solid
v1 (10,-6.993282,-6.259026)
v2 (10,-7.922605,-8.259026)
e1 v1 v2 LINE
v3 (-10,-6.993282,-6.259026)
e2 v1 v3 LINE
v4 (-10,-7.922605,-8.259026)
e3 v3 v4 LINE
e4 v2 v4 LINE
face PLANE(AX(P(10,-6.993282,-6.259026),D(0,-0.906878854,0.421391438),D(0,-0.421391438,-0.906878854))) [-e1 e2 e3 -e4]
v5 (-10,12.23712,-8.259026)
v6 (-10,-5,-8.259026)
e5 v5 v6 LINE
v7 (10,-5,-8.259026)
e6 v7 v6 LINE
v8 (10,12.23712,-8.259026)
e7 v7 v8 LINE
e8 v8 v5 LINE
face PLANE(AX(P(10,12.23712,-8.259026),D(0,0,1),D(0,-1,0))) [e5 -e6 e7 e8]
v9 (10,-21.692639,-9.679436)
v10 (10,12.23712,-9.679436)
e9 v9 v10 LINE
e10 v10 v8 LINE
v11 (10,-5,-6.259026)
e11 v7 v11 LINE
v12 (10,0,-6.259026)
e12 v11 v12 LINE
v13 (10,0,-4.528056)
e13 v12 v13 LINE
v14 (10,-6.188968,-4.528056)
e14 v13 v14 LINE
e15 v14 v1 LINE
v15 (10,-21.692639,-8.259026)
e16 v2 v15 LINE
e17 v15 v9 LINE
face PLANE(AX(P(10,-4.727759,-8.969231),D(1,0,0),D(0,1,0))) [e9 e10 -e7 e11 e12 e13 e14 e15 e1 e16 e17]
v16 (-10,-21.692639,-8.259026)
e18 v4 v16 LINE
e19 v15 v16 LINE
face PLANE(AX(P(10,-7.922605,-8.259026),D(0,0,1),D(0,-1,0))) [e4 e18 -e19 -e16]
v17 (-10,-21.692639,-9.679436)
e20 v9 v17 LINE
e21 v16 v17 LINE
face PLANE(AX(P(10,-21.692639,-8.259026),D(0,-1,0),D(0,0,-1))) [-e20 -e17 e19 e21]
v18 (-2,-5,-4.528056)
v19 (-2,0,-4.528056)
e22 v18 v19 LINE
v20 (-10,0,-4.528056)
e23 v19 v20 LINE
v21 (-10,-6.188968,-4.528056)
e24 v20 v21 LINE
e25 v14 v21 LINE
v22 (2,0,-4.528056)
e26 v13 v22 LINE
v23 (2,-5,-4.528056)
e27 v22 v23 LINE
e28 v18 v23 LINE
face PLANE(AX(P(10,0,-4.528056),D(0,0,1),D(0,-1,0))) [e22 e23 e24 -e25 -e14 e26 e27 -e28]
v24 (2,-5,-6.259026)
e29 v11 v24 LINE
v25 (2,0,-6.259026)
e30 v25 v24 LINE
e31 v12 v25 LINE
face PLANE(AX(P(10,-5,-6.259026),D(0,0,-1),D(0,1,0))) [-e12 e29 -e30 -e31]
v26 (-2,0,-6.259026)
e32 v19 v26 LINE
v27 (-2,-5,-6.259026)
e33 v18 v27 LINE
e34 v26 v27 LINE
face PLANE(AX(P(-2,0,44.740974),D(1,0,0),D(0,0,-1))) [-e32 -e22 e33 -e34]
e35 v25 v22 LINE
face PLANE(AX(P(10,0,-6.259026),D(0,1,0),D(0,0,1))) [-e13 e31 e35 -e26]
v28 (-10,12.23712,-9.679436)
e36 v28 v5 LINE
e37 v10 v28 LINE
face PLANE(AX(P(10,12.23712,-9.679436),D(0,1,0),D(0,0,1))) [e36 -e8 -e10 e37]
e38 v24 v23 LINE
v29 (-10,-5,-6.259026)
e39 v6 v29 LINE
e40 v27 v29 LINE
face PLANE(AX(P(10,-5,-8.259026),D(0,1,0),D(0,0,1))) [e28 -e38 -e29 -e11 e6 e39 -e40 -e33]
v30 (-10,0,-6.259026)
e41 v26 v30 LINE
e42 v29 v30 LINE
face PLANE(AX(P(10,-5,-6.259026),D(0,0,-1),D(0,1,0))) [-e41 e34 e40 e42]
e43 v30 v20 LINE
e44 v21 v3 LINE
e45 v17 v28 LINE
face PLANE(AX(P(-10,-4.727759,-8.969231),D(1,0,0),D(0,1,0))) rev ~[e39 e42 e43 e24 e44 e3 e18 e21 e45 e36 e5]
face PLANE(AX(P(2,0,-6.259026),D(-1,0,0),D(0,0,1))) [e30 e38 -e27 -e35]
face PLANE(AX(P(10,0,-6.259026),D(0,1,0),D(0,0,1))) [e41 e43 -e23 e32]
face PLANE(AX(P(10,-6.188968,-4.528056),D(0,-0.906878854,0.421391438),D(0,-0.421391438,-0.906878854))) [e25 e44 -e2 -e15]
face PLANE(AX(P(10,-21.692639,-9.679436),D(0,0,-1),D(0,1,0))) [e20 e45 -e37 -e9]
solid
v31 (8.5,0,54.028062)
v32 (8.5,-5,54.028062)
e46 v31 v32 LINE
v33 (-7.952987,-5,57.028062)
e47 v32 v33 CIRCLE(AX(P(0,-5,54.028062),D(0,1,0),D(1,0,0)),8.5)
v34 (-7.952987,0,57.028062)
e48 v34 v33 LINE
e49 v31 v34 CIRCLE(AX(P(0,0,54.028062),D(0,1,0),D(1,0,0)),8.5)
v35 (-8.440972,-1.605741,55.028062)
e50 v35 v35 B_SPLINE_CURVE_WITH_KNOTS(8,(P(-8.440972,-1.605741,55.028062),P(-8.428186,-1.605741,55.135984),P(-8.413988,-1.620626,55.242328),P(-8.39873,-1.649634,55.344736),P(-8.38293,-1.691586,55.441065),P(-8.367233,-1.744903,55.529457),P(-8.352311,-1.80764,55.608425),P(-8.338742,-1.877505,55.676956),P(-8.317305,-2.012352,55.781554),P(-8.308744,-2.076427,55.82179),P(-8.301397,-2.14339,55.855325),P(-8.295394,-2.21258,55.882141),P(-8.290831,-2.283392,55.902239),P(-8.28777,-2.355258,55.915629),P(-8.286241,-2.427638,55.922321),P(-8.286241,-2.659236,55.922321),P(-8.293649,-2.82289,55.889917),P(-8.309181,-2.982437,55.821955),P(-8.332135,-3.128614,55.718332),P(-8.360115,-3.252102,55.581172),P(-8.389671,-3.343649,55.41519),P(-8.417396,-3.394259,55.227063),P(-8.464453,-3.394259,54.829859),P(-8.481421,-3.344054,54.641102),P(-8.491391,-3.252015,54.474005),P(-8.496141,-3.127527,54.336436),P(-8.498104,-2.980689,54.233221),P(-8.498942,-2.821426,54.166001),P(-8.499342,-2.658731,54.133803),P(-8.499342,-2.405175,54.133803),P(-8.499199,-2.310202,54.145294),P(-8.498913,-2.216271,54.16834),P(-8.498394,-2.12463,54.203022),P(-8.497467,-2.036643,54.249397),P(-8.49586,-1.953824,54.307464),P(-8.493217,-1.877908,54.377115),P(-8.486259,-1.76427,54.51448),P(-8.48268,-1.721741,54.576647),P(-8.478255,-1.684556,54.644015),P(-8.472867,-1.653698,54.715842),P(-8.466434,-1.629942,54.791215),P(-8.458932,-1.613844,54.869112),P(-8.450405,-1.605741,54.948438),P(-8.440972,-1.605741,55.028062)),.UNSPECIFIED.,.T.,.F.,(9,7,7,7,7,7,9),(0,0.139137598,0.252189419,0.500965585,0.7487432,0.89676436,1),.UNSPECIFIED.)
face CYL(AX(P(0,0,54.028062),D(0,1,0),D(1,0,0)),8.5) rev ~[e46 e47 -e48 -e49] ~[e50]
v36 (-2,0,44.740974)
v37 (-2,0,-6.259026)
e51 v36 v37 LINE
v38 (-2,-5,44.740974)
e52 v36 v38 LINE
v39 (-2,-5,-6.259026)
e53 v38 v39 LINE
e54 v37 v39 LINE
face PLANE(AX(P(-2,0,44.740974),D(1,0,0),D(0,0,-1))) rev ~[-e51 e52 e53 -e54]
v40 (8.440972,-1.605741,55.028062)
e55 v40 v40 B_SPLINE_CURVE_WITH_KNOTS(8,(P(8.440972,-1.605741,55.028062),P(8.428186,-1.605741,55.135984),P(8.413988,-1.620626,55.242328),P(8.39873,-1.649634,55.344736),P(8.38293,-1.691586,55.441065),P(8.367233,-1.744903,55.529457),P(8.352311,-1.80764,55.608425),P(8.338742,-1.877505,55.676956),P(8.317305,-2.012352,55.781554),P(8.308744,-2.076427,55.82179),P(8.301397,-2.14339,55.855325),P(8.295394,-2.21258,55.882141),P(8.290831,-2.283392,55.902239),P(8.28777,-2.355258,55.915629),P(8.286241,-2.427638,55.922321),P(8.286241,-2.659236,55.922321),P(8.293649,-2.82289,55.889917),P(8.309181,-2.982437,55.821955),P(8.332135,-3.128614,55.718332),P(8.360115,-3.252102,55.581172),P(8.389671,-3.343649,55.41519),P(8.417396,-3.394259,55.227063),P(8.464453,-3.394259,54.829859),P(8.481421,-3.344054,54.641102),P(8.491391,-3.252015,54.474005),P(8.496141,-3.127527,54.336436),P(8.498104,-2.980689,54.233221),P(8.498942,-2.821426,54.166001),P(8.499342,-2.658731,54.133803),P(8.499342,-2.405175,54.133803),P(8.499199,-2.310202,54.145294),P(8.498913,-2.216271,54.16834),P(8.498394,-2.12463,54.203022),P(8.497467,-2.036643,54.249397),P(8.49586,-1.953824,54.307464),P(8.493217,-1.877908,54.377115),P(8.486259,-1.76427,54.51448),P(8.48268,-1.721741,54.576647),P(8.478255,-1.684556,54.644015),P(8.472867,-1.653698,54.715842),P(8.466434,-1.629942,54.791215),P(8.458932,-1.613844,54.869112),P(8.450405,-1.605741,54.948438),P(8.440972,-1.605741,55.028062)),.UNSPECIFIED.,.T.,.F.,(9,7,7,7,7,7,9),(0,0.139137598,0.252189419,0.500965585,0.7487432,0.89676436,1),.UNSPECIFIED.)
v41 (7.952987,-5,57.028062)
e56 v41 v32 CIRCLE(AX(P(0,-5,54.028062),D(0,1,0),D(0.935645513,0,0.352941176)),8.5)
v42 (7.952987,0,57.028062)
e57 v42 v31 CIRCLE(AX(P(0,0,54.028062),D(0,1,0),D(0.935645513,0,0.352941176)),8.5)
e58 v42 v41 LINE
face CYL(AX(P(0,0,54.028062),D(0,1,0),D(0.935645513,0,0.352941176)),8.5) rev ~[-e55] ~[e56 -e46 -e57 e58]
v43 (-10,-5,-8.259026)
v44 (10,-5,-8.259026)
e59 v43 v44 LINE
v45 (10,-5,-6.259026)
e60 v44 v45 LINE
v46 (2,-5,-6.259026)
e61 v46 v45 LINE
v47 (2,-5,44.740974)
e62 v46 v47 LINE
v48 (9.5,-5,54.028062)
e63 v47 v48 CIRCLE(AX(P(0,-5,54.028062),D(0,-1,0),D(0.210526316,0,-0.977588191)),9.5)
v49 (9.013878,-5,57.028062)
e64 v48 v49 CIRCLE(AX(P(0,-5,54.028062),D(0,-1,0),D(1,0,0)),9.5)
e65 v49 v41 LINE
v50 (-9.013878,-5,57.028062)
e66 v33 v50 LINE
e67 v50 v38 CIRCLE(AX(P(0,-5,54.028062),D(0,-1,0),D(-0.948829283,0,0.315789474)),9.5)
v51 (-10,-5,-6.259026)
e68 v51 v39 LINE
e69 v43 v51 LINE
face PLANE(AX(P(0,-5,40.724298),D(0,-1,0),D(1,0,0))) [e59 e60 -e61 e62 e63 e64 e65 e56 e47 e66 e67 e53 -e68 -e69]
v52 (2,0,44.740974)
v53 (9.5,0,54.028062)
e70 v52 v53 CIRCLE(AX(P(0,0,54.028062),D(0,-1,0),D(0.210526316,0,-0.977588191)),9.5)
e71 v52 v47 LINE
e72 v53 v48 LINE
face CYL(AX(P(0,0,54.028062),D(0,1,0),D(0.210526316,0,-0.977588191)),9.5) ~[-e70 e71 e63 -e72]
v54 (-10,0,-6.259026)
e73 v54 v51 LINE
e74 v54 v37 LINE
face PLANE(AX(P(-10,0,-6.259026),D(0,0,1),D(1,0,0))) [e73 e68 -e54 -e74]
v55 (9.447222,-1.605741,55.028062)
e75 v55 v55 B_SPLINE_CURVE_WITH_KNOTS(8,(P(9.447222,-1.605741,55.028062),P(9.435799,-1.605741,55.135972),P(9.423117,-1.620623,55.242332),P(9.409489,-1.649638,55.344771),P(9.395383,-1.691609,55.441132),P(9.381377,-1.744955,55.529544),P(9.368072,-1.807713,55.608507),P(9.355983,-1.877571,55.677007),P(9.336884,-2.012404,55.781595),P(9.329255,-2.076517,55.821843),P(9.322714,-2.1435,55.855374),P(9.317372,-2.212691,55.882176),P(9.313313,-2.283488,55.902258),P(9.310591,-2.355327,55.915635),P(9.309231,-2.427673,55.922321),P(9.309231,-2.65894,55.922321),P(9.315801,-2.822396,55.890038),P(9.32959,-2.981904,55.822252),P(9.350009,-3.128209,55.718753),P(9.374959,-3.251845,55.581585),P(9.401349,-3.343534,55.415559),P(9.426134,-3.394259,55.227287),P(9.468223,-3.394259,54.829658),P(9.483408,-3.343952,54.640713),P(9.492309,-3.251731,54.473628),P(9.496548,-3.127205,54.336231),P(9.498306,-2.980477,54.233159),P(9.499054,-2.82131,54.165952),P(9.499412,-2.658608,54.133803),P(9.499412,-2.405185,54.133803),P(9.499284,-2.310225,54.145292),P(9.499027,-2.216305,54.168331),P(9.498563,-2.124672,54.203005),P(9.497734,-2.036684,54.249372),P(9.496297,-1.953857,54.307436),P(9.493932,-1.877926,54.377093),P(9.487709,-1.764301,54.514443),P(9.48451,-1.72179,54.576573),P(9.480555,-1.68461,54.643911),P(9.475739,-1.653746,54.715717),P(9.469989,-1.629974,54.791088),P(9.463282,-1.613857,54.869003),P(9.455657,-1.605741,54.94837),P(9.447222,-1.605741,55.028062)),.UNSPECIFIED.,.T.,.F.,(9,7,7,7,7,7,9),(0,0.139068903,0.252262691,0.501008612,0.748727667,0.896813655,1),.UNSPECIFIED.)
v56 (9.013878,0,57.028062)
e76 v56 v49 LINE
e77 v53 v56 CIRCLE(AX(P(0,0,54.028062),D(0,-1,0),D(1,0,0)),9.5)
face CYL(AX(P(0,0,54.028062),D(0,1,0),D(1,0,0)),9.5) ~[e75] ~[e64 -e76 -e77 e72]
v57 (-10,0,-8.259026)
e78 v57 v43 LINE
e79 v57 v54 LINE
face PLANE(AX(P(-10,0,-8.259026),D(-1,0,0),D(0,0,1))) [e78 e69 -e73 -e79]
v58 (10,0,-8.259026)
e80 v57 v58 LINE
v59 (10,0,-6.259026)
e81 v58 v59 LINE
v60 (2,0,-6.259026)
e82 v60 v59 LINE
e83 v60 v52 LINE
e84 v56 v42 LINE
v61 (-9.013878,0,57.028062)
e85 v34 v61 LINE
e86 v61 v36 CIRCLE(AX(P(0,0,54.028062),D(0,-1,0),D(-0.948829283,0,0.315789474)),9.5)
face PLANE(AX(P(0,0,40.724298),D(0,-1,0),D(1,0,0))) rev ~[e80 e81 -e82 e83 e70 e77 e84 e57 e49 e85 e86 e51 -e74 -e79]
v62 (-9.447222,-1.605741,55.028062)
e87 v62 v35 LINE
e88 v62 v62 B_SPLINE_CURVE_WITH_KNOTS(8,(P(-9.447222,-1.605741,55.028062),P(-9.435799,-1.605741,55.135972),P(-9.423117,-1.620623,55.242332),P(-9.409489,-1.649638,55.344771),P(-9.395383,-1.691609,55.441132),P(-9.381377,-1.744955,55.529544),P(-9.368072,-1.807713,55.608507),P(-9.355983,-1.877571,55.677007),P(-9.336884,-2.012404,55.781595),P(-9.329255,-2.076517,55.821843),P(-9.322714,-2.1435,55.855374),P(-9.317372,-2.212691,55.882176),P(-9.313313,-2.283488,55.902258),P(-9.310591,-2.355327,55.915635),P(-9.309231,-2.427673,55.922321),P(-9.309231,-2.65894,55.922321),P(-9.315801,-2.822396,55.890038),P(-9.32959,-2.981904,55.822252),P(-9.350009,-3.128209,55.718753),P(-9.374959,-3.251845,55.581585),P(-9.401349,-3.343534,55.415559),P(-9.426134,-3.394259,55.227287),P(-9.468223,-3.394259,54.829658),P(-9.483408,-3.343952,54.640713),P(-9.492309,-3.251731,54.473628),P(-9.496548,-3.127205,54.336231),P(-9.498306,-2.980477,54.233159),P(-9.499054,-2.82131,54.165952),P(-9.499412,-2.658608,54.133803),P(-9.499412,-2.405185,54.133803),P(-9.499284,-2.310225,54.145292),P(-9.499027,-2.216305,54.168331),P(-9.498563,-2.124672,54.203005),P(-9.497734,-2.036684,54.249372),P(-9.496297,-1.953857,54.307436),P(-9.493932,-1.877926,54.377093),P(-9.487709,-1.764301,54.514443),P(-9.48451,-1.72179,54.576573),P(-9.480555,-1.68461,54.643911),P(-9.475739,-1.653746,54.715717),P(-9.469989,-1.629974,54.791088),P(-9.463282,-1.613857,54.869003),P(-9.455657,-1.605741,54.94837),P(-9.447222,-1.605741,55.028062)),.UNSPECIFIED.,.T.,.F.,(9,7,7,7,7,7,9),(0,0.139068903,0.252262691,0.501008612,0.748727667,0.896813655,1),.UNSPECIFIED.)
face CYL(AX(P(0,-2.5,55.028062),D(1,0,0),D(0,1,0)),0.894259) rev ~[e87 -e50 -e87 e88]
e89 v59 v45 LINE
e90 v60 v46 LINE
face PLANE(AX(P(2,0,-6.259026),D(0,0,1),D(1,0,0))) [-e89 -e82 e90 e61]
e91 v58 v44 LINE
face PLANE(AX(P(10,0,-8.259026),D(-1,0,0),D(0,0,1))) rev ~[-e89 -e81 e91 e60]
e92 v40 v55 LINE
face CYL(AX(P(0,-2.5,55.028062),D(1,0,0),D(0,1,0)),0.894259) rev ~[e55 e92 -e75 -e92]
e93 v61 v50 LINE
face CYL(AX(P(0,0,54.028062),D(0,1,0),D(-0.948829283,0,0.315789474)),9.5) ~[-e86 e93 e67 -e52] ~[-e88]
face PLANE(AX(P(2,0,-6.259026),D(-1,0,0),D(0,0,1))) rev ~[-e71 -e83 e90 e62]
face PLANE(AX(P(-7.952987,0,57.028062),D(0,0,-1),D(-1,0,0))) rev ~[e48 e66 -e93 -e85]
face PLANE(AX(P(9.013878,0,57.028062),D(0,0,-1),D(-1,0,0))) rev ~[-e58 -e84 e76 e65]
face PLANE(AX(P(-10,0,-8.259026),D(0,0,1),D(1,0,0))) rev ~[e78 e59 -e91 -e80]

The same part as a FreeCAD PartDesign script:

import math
import FreeCAD as App
import Part
import Sketcher
from FreeCAD import Vector


def add_polygon(sketch, points):
    """Adds a closed chain of lines whose ends are joined by coincident constraints."""
    first, n = sketch.GeometryCount, len(points)
    for a, b in zip(points, points[1:] + points[:1]):
        sketch.addGeometry(Part.LineSegment(App.Vector(*a, 0), App.Vector(*b, 0)), False)
    for i in range(n):
        sketch.addConstraint(Sketcher.Constraint("Coincident", first + i, 2, first + (i + 1) % n, 1))

doc = App.newDocument("Part")
body = doc.addObject("PartDesign::Body", "Body")

# Sketch on XZ plane
sketch1 = doc.addObject("Sketcher::SketchObject", "Sketch")
body.addObject(sketch1)
sketch1.AttachmentSupport = (doc.XZ_Plane, [""])
sketch1.MapMode = "FlatFace"
sketch1.addGeometry(Part.LineSegment(Vector(-2, 44.7, 0), Vector(-2, -6.3, 0)), False)
sketch1.addGeometry(Part.LineSegment(Vector(-2, -6.3, 0), Vector(-10, -6.3, 0)), False)
sketch1.addGeometry(Part.LineSegment(Vector(-10, -6.3, 0), Vector(-10, -8.3, 0)), False)
sketch1.addGeometry(Part.LineSegment(Vector(-10, -8.3, 0), Vector(10, -8.3, 0)), False)
sketch1.addGeometry(Part.LineSegment(Vector(10, -8.3, 0), Vector(10, -6.3, 0)), False)
sketch1.addGeometry(Part.LineSegment(Vector(10, -6.3, 0), Vector(2, -6.3, 0)), False)
sketch1.addGeometry(Part.LineSegment(Vector(2, -6.3, 0), Vector(2, 44.7, 0)), False)
sketch1.addGeometry(Part.ArcOfCircle(Part.Circle(Vector(0, 54, 0), Vector(0, 0, 1), 9.5), math.radians(-78), math.radians(0)), False)
sketch1.addGeometry(Part.ArcOfCircle(Part.Circle(Vector(0, 54, 0), Vector(0, 0, 1), 9.5), math.radians(0), math.radians(18.41)), False)
sketch1.addGeometry(Part.LineSegment(Vector(9, 57, 0), Vector(8, 57, 0)), False)
sketch1.addGeometry(Part.ArcOfCircle(Part.Circle(Vector(0, 54, 0), Vector(0, 0, 1), 8.5), math.radians(0), math.radians(21)), False)
sketch1.addGeometry(Part.ArcOfCircle(Part.Circle(Vector(0, 54, 0), Vector(0, 0, 1), 8.5), math.radians(159), math.radians(360)), False)
sketch1.addGeometry(Part.LineSegment(Vector(-8, 57, 0), Vector(-9, 57, 0)), False)
sketch1.addGeometry(Part.ArcOfCircle(Part.Circle(Vector(0, 54, 0), Vector(0, 0, 1), 9.5), math.radians(162), math.radians(258)), False)
sketch1.addConstraint(Sketcher.Constraint("Coincident", 0, 2, 1, 1))
sketch1.addConstraint(Sketcher.Constraint("Coincident", 1, 2, 2, 1))
sketch1.addConstraint(Sketcher.Constraint("Coincident", 2, 2, 3, 1))
sketch1.addConstraint(Sketcher.Constraint("Coincident", 3, 2, 4, 1))
sketch1.addConstraint(Sketcher.Constraint("Coincident", 4, 2, 5, 1))
sketch1.addConstraint(Sketcher.Constraint("Coincident", 5, 2, 6, 1))
sketch1.addConstraint(Sketcher.Constraint("Coincident", 6, 2, 7, 1))
sketch1.addConstraint(Sketcher.Constraint("Tangent", 7, 2, 8, 1))
sketch1.addConstraint(Sketcher.Constraint("Coincident", 8, 2, 9, 1))
sketch1.addConstraint(Sketcher.Constraint("Coincident", 9, 2, 10, 2))
sketch1.addConstraint(Sketcher.Constraint("Tangent", 10, 1, 11, 2))
sketch1.addConstraint(Sketcher.Constraint("Coincident", 11, 1, 12, 1))
sketch1.addConstraint(Sketcher.Constraint("Coincident", 12, 2, 13, 1))
sketch1.addConstraint(Sketcher.Constraint("Coincident", 13, 2, 0, 1))
sketch1.addConstraint(Sketcher.Constraint("Vertical", 0))
sketch1.addConstraint(Sketcher.Constraint("Horizontal", 1))
sketch1.addConstraint(Sketcher.Constraint("Vertical", 2))
sketch1.addConstraint(Sketcher.Constraint("Horizontal", 3))
sketch1.addConstraint(Sketcher.Constraint("Vertical", 4))
sketch1.addConstraint(Sketcher.Constraint("Horizontal", 5))
sketch1.addConstraint(Sketcher.Constraint("Vertical", 6))
sketch1.addConstraint(Sketcher.Constraint("Horizontal", 9))
sketch1.addConstraint(Sketcher.Constraint("Horizontal", 12))
sketch1.addConstraint(Sketcher.Constraint("Coincident", 10, 3, 7, 3))
sketch1.addConstraint(Sketcher.Constraint("Coincident", 13, 3, 7, 3))
sketch1.addConstraint(Sketcher.Constraint("Equal", 7, 8))
sketch1.addConstraint(Sketcher.Constraint("Equal", 10, 11))
sketch1.addConstraint(Sketcher.Constraint("Equal", 8, 13))
sketch1.addConstraint(Sketcher.Constraint("Symmetric", 1, 2, 4, 2, -2))
sketch1.addConstraint(Sketcher.Constraint("Symmetric", 9, 2, 11, 1, -2))
sketch1.addConstraint(Sketcher.Constraint("Horizontal", 13, 3, 7, 2))
sketch1.addConstraint(Sketcher.Constraint("Horizontal", 7, 2, 10, 1))
sketch1.addConstraint(Sketcher.Constraint("Horizontal", 6, 2, 13, 2))
sketch1.addConstraint(Sketcher.Constraint("Radius", 7, 9.5))
sketch1.addConstraint(Sketcher.Constraint("Radius", 10, 8.5))
sketch1.addConstraint(Sketcher.Constraint("DistanceX", 1, 2, 1, 1, 8.0))
sketch1.addConstraint(Sketcher.Constraint("DistanceX", 3, 1, 3, 2, 20.0))
sketch1.addConstraint(Sketcher.Constraint("DistanceY", 0, 2, 0, 1, 51.0))
sketch1.addConstraint(Sketcher.Constraint("DistanceY", 2, 2, 2, 1, 2.0))
sketch1.addConstraint(Sketcher.Constraint("DistanceY", 7, 2, 8, 2, 3.0))
sketch1.addConstraint(Sketcher.Constraint("DistanceY", -1, 1, 7, 3, 54.028062))
pad1 = doc.addObject("PartDesign::Pad", "Pad")
body.addObject(pad1)
pad1.Profile = sketch1
pad1.Length = 5
body2 = doc.addObject("PartDesign::Body", "Body001")

# Sketch on YZ plane
sketch2 = doc.addObject("Sketcher::SketchObject", "Sketch001")
body2.addObject(sketch2)
sketch2.AttachmentSupport = (doc.getObject("YZ_Plane001"), [""])
sketch2.MapMode = "FlatFace"
sketch2.AttachmentOffset = App.Placement(Vector(0, 0, 10), App.Rotation())
add_polygon(sketch2, [(12.2, -9.7), (12.2, -8.3), (-5, -8.3), (-5, -6.3), (0, -6.3), (0, -4.5), (-6.2, -4.5), (-7, -6.3), (-7.9, -8.3), (-21.7, -8.3), (-21.7, -9.7)])  # lines 0-10
sketch2.addConstraint(Sketcher.Constraint("Vertical", 0))
sketch2.addConstraint(Sketcher.Constraint("Horizontal", 1))
sketch2.addConstraint(Sketcher.Constraint("Vertical", 2))
sketch2.addConstraint(Sketcher.Constraint("Horizontal", 3))
sketch2.addConstraint(Sketcher.Constraint("Vertical", 4))
sketch2.addConstraint(Sketcher.Constraint("Horizontal", 5))
sketch2.addConstraint(Sketcher.Constraint("Horizontal", 8))
sketch2.addConstraint(Sketcher.Constraint("Vertical", 9))
sketch2.addConstraint(Sketcher.Constraint("Horizontal", 10))
sketch2.addConstraint(Sketcher.Constraint("PointOnObject", 3, 2, -2))
sketch2.addConstraint(Sketcher.Constraint("Parallel", 6, 7))
sketch2.addConstraint(Sketcher.Constraint("Horizontal", 3, 2, 6, 2))
sketch2.addConstraint(Sketcher.Constraint("Horizontal", 1, 2, 7, 2))
sketch2.addConstraint(Sketcher.Constraint("DistanceX", 3, 1, 3, 2, 5.0))
sketch2.addConstraint(Sketcher.Constraint("DistanceY", 2, 1, 2, 2, 2.0))
sketch2.addConstraint(Sketcher.Constraint("DistanceX", 1, 2, 1, 1, 17.23712))
sketch2.addConstraint(Sketcher.Constraint("DistanceX", 10, 1, 10, 2, 33.92976))
sketch2.addConstraint(Sketcher.Constraint("DistanceY", 0, 1, 0, 2, 1.42041))
sketch2.addConstraint(Sketcher.Constraint("DistanceY", 4, 1, 4, 2, 1.73097))
sketch2.addConstraint(Sketcher.Constraint("Distance", 6, 1.908711))
sketch2.addConstraint(Sketcher.Constraint("DistanceX", 5, 2, 5, 1, 6.188968))
sketch2.addConstraint(Sketcher.Constraint("DistanceY", 0, 2, -1, 1, 8.259026))
pad2 = doc.addObject("PartDesign::Pad", "Pad001")
body2.addObject(pad2)
pad2.Profile = sketch2
pad2.Length = 20
pad2.Reversed = True
doc.recompute()

body3 = doc.addObject("PartDesign::Body", "Body002")
body3.BaseFeature = body
boolean = doc.addObject("PartDesign::Boolean", "Boolean")
body2.addObject(boolean)
boolean.Type = "Cut"
boolean.addObjects([body3])
doc.recompute()

# Sketch on YZ plane
sketch3 = doc.addObject("Sketcher::SketchObject", "Sketch002")
body.addObject(sketch3)
sketch3.AttachmentSupport = (doc.YZ_Plane, [""])
sketch3.MapMode = "FlatFace"
sketch3.addGeometry(Part.Circle(Vector(-2.5, 55, 0), Vector(0, 0, 1), 0.9), False)
sketch3.addConstraint(Sketcher.Constraint("DistanceX", 0, 3, -1, 1, 2.5))
sketch3.addConstraint(Sketcher.Constraint("Diameter", 0, 1.788518))
sketch3.addConstraint(Sketcher.Constraint("DistanceY", -1, 1, 0, 3, 55.028062))
pocket1 = doc.addObject("PartDesign::Pocket", "Pocket")
body.addObject(pocket1)
pocket1.Profile = sketch3
pocket1.Length = 25
pocket1.Midplane = True

doc.recompute()
